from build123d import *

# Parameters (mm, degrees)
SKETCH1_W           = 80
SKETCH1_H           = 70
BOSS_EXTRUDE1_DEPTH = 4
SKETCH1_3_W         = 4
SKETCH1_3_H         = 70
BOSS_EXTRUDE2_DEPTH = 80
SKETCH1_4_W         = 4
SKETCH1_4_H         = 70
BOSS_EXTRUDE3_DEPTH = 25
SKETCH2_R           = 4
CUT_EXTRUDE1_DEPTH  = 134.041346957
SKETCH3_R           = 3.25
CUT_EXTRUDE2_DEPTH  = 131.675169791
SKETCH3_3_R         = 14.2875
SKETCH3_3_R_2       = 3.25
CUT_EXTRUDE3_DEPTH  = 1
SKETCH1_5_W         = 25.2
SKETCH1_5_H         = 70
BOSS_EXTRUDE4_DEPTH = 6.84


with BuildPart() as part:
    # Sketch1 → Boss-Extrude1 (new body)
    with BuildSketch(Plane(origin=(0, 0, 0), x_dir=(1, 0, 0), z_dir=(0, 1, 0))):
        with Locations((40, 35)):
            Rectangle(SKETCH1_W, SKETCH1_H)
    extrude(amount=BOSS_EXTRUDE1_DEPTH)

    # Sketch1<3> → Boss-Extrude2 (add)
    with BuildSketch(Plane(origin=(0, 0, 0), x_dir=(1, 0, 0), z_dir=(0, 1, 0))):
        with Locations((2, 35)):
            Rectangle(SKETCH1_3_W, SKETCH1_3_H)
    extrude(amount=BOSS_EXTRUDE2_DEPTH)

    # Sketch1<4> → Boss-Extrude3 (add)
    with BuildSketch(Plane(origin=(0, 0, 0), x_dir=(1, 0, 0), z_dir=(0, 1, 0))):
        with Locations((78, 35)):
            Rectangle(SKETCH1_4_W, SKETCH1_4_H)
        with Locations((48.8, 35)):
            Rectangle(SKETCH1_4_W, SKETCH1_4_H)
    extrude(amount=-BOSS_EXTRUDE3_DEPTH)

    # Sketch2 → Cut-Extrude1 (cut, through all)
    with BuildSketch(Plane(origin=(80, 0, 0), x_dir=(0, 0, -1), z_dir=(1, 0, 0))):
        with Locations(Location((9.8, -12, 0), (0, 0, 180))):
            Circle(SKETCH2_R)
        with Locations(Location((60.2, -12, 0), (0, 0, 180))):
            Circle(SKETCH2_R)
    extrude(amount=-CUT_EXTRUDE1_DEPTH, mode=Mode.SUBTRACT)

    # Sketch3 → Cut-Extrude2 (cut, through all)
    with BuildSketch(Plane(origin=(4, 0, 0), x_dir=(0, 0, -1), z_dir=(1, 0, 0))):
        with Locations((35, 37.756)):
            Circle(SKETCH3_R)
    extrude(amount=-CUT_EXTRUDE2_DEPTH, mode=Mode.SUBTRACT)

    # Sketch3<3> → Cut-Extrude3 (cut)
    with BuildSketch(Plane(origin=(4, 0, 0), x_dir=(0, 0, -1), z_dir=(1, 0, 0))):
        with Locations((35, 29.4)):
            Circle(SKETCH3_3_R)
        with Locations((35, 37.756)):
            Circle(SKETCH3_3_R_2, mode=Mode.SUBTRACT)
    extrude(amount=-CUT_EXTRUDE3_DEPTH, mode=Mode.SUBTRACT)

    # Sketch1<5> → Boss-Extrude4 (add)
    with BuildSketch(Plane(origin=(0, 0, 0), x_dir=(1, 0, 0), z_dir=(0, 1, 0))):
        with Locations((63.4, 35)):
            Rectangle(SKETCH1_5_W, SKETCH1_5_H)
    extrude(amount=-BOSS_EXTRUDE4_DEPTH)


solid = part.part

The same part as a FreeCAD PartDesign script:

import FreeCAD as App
import Part
import Sketcher
from FreeCAD import Vector
Q = App.Units.Quantity


def add_polygon(sketch, points):
    """Adds a closed chain of lines whose ends are joined by coincident constraints."""
    first, n = sketch.GeometryCount, len(points)
    for a, b in zip(points, points[1:] + points[:1]):
        sketch.addGeometry(Part.LineSegment(App.Vector(*a, 0), App.Vector(*b, 0)), False)
    for i in range(n):
        sketch.addConstraint(Sketcher.Constraint("Coincident", first + i, 2, first + (i + 1) % n, 1))

doc = App.newDocument("Part")
body = doc.addObject("PartDesign::Body", "Body")

# Sketch on XZ plane
sketch1 = body.newObject("Sketcher::SketchObject", "Sketch")
sketch1.AttachmentSupport = (doc.getObject("XZ_Plane"), [""])
sketch1.MapMode = "FlatFace"
add_polygon(sketch1, [(0, -70), (0, 0), (80, 0), (80, -70)])  # lines 0-3
sketch1.addConstraint([
    Sketcher.Constraint("Vertical", 0),
    Sketcher.Constraint("Horizontal", 1),
    Sketcher.Constraint("Vertical", 2),
    Sketcher.Constraint("Horizontal", 3),
    Sketcher.Constraint("Coincident", 0, 2, -1, 1),
    Sketcher.Constraint("DistanceX", 1, 1, 1, 2, Q("80 mm")),
    Sketcher.Constraint("DistanceY", 0, 1, 0, 2, Q("70 mm")),
])
pad1 = body.newObject("PartDesign::Pad", "Pad")
pad1.Profile = sketch1
pad1.Length = 4
pad1.Reversed = True

# Sketch on XZ plane
sketch2 = body.newObject("Sketcher::SketchObject", "Sketch001")
sketch2.AttachmentSupport = (doc.getObject("XZ_Plane"), [""])
sketch2.MapMode = "FlatFace"
add_polygon(sketch2, [(0, -70), (0, 0), (4, 0), (4, -70)])  # lines 0-3
sketch2.addConstraint([
    Sketcher.Constraint("Vertical", 0),
    Sketcher.Constraint("Horizontal", 1),
    Sketcher.Constraint("Vertical", 2),
    Sketcher.Constraint("Horizontal", 3),
    Sketcher.Constraint("Coincident", 0, 2, -1, 1),
    Sketcher.Constraint("DistanceX", 1, 1, 1, 2, Q("4 mm")),
    Sketcher.Constraint("DistanceY", 0, 1, 0, 2, Q("70 mm")),
])
pad2 = body.newObject("PartDesign::Pad", "Pad001")
pad2.Profile = sketch2
pad2.Length = 80
pad2.Reversed = True

# Sketch on XZ plane
sketch3 = body.newObject("Sketcher::SketchObject", "Sketch002")
sketch3.AttachmentSupport = (doc.getObject("XZ_Plane"), [""])
sketch3.MapMode = "FlatFace"
add_polygon(sketch3, [(76, -70), (76, 0), (80, 0), (80, -70)])  # lines 0-3
add_polygon(sketch3, [(46.8, -70), (46.8, 0), (50.8, 0), (50.8, -70)])  # lines 4-7
sketch3.addConstraint([
    Sketcher.Constraint("Vertical", 0),
    Sketcher.Constraint("Horizontal", 1),
    Sketcher.Constraint("Vertical", 2),
    Sketcher.Constraint("Horizontal", 3),
    Sketcher.Constraint("Vertical", 4),
    Sketcher.Constraint("Horizontal", 5),
    Sketcher.Constraint("Vertical", 6),
    Sketcher.Constraint("Horizontal", 7),
    Sketcher.Constraint("PointOnObject", 0, 2, -1),
    Sketcher.Constraint("PointOnObject", 4, 2, -1),
    Sketcher.Constraint("Horizontal", 3, 2, 6, 2),
    Sketcher.Constraint("Equal", 3, 5),
    Sketcher.Constraint("DistanceX", 1, 1, 1, 2, Q("4 mm")),
    Sketcher.Constraint("DistanceY", 0, 1, 0, 2, Q("70 mm")),
    Sketcher.Constraint("DistanceX", -1, 1, 0, 2, Q("76 mm")),
    Sketcher.Constraint("DistanceX", -1, 1, 4, 2, Q("46.8 mm")),
])
pad3 = body.newObject("PartDesign::Pad", "Pad002")
pad3.Profile = sketch3
pad3.Length = 25

# Sketch on YZ plane
sketch4 = body.newObject("Sketcher::SketchObject", "Sketch003")
sketch4.AttachmentSupport = (doc.getObject("YZ_Plane"), [""])
sketch4.MapMode = "FlatFace"
sketch4.AttachmentOffset = App.Placement(Vector(0, 0, 80), App.Rotation())
sketch4.addGeometry([
    Part.Circle(Vector(-12, -9.8, 0), Vector(0, 0, 1), 4),
    Part.Circle(Vector(-12, -60.2, 0), Vector(0, 0, 1), 4),
], False)
sketch4.addConstraint([
    Sketcher.Constraint("Equal", 0, 1),
    Sketcher.Constraint("Vertical", 0, 3, 1, 3),
    Sketcher.Constraint("Diameter", 0, Q("8 mm")),
    Sketcher.Constraint("DistanceX", 0, 3, -1, 1, Q("12 mm")),
    Sketcher.Constraint("DistanceY", 0, 3, -1, 1, Q("9.8 mm")),
    Sketcher.Constraint("DistanceY", 1, 3, -1, 1, Q("60.2 mm")),
])
pocket1 = body.newObject("PartDesign::Pocket", "Pocket")
pocket1.Profile = sketch4
pocket1.Type = "ThroughAll"

# Sketch on YZ plane
sketch5 = body.newObject("Sketcher::SketchObject", "Sketch004")
sketch5.AttachmentSupport = (doc.getObject("YZ_Plane"), [""])
sketch5.MapMode = "FlatFace"
sketch5.AttachmentOffset = App.Placement(Vector(0, 0, 4), App.Rotation())
sketch5.addGeometry(Part.Circle(Vector(37.8, -35, 0), Vector(0, 0, 1), 3.2), False)
sketch5.addConstraint([
    Sketcher.Constraint("Diameter", 0, Q("6.5 mm")),
    Sketcher.Constraint("DistanceY", 0, 3, -1, 1, Q("35 mm")),
    Sketcher.Constraint("DistanceX", -1, 1, 0, 3, Q("37.756 mm")),
])
pocket2 = body.newObject("PartDesign::Pocket", "Pocket001")
pocket2.Profile = sketch5
pocket2.Type = "ThroughAll"

# Sketch on YZ plane
sketch6 = body.newObject("Sketcher::SketchObject", "Sketch005")
sketch6.AttachmentSupport = (doc.getObject("YZ_Plane"), [""])
sketch6.MapMode = "FlatFace"
sketch6.AttachmentOffset = App.Placement(Vector(0, 0, 4), App.Rotation())
sketch6.addGeometry([
    Part.Circle(Vector(29.4, -35, 0), Vector(0, 0, 1), 14.3),
    Part.Circle(Vector(37.8, -35, 0), Vector(0, 0, 1), 3.2),
], False)
sketch6.addConstraint([
    Sketcher.Constraint("Horizontal", 0, 3, 1, 3),
    Sketcher.Constraint("Diameter", 1, Q("6.5 mm")),
    Sketcher.Constraint("Diameter", 0, Q("28.575 mm")),
    Sketcher.Constraint("DistanceY", 0, 3, -1, 1, Q("35 mm")),
    Sketcher.Constraint("DistanceX", -1, 1, 0, 3, Q("29.4 mm")),
    Sketcher.Constraint("DistanceX", -1, 1, 1, 3, Q("37.756 mm")),
])
pocket3 = body.newObject("PartDesign::Pocket", "Pocket002")
pocket3.Profile = sketch6
pocket3.Length = 1

# Sketch on XZ plane
sketch7 = body.newObject("Sketcher::SketchObject", "Sketch006")
sketch7.AttachmentSupport = (doc.getObject("XZ_Plane"), [""])
sketch7.MapMode = "FlatFace"
add_polygon(sketch7, [(51, -70), (51, 0), (76, 0), (76, -70)])  # lines 0-3
sketch7.addConstraint([
    Sketcher.Constraint("Vertical", 0),
    Sketcher.Constraint("Horizontal", 1),
    Sketcher.Constraint("Vertical", 2),
    Sketcher.Constraint("Horizontal", 3),
    Sketcher.Constraint("PointOnObject", 0, 2, -1),
    Sketcher.Constraint("DistanceY", 0, 1, 0, 2, Q("70 mm")),
    Sketcher.Constraint("DistanceX", 1, 1, 1, 2, Q("25.2 mm")),
    Sketcher.Constraint("DistanceX", -1, 1, 1, 2, Q("76 mm")),
])
pad4 = body.newObject("PartDesign::Pad", "Pad003")
pad4.Profile = sketch7
pad4.Length = 6.84

doc.recompute()
